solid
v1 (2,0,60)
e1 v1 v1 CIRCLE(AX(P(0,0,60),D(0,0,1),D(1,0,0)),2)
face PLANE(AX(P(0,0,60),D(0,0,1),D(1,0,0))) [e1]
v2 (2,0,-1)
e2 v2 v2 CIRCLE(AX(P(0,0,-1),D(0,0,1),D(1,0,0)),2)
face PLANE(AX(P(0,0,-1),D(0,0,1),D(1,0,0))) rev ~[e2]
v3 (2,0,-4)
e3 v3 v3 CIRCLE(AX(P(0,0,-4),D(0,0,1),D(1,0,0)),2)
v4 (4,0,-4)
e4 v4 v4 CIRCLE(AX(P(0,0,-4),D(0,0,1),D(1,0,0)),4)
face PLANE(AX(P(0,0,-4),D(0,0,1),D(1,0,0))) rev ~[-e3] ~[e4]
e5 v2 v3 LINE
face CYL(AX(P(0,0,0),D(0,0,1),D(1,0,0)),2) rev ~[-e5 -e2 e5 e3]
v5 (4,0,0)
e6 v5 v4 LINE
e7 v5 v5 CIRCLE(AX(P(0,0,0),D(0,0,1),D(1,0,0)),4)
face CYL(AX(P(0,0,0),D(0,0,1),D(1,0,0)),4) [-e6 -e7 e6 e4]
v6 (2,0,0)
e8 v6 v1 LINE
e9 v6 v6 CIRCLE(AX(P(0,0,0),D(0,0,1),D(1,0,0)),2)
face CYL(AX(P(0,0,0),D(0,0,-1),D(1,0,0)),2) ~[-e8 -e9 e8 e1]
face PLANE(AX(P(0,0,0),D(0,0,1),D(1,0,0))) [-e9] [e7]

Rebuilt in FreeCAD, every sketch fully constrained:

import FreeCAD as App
import Part
import Sketcher
Q = App.Units.Quantity

doc = App.newDocument("Part")
params = doc.addObject("Spreadsheet::Sheet", "Params")
for row, (alias, value) in enumerate([
    ("sketch1_diameter", "8 mm"),
    ("sketch1_diameter2", "4 mm"),
    ("pad1_length", "4 mm"),
    ("sketch2_diameter", "4 mm"),
    ("pad2_length", "60 mm"),
    ("sketch3_diameter", "8 mm"),
    ("pad3_length", "1 mm"),
], start=1):
    params.set(f"A{row}", alias)
    params.set(f"B{row}", "=" + value)
    params.setAlias(f"B{row}", alias)

body = doc.addObject("PartDesign::Body", "Body")
body.AllowCompound = True

sketch1 = doc.addObject("Sketcher::SketchObject", "Sketch")
body.addObject(sketch1)
sketch1.AttachmentSupport = (doc.XY_Plane, [""])
sketch1.MapMode = "FlatFace"
sketch1.addGeometry([
    Part.Circle(App.Vector(0, 0, 0), App.Vector(0, 0, 1), 4),
    Part.Circle(App.Vector(0, 0, 0), App.Vector(0, 0, 1), 2),
], False)
sketch1.addConstraint([
    Sketcher.Constraint("Coincident", 0, 3, -1, 1),
    Sketcher.Constraint("Coincident", 1, 3, -1, 1),
    Sketcher.Constraint("Diameter", 0, Q("8 mm")),
    Sketcher.Constraint("Diameter", 1, Q("4 mm")),
])
sketch1.setExpression("Constraints[2]", "Params.sketch1_diameter")
sketch1.setExpression("Constraints[3]", "Params.sketch1_diameter2")
pad1 = doc.addObject("PartDesign::Pad", "Pad")
body.addObject(pad1)
pad1.Profile = sketch1
pad1.setExpression("Length", "Params.pad1_length")
pad1.Reversed = True

sketch2 = doc.addObject("Sketcher::SketchObject", "Sketch001")
body.addObject(sketch2)
sketch2.AttachmentSupport = (doc.XY_Plane, [""])
sketch2.MapMode = "FlatFace"
sketch2.addGeometry(Part.Circle(App.Vector(0, 0, 0), App.Vector(0, 0, 1), 2), False)
sketch2.addConstraint([
    Sketcher.Constraint("Coincident", 0, 3, -1, 1),
    Sketcher.Constraint("Diameter", 0, Q("4 mm")),
])
sketch2.setExpression("Constraints[1]", "Params.sketch2_diameter")
pad2 = doc.addObject("PartDesign::Pad", "Pad001")
body.addObject(pad2)
pad2.Profile = sketch2
pad2.setExpression("Length", "Params.pad2_length")

sketch3 = doc.addObject("Sketcher::SketchObject", "Sketch002")
body.addObject(sketch3)
sketch3.AttachmentSupport = (doc.XY_Plane, [""])
sketch3.MapMode = "FlatFace"
sketch3.addGeometry(Part.Circle(App.Vector(0, 0, 0), App.Vector(0, 0, 1), 4), False)
sketch3.addConstraint([
    Sketcher.Constraint("Coincident", 0, 3, -1, 1),
    Sketcher.Constraint("Diameter", 0, Q("8 mm")),
])
sketch3.setExpression("Constraints[1]", "Params.sketch3_diameter")
pad3 = doc.addObject("PartDesign::Pad", "Pad002")
body.addObject(pad3)
pad3.Profile = sketch3
pad3.setExpression("Length", "Params.pad3_length")
pad3.Reversed = True

doc.recompute()
